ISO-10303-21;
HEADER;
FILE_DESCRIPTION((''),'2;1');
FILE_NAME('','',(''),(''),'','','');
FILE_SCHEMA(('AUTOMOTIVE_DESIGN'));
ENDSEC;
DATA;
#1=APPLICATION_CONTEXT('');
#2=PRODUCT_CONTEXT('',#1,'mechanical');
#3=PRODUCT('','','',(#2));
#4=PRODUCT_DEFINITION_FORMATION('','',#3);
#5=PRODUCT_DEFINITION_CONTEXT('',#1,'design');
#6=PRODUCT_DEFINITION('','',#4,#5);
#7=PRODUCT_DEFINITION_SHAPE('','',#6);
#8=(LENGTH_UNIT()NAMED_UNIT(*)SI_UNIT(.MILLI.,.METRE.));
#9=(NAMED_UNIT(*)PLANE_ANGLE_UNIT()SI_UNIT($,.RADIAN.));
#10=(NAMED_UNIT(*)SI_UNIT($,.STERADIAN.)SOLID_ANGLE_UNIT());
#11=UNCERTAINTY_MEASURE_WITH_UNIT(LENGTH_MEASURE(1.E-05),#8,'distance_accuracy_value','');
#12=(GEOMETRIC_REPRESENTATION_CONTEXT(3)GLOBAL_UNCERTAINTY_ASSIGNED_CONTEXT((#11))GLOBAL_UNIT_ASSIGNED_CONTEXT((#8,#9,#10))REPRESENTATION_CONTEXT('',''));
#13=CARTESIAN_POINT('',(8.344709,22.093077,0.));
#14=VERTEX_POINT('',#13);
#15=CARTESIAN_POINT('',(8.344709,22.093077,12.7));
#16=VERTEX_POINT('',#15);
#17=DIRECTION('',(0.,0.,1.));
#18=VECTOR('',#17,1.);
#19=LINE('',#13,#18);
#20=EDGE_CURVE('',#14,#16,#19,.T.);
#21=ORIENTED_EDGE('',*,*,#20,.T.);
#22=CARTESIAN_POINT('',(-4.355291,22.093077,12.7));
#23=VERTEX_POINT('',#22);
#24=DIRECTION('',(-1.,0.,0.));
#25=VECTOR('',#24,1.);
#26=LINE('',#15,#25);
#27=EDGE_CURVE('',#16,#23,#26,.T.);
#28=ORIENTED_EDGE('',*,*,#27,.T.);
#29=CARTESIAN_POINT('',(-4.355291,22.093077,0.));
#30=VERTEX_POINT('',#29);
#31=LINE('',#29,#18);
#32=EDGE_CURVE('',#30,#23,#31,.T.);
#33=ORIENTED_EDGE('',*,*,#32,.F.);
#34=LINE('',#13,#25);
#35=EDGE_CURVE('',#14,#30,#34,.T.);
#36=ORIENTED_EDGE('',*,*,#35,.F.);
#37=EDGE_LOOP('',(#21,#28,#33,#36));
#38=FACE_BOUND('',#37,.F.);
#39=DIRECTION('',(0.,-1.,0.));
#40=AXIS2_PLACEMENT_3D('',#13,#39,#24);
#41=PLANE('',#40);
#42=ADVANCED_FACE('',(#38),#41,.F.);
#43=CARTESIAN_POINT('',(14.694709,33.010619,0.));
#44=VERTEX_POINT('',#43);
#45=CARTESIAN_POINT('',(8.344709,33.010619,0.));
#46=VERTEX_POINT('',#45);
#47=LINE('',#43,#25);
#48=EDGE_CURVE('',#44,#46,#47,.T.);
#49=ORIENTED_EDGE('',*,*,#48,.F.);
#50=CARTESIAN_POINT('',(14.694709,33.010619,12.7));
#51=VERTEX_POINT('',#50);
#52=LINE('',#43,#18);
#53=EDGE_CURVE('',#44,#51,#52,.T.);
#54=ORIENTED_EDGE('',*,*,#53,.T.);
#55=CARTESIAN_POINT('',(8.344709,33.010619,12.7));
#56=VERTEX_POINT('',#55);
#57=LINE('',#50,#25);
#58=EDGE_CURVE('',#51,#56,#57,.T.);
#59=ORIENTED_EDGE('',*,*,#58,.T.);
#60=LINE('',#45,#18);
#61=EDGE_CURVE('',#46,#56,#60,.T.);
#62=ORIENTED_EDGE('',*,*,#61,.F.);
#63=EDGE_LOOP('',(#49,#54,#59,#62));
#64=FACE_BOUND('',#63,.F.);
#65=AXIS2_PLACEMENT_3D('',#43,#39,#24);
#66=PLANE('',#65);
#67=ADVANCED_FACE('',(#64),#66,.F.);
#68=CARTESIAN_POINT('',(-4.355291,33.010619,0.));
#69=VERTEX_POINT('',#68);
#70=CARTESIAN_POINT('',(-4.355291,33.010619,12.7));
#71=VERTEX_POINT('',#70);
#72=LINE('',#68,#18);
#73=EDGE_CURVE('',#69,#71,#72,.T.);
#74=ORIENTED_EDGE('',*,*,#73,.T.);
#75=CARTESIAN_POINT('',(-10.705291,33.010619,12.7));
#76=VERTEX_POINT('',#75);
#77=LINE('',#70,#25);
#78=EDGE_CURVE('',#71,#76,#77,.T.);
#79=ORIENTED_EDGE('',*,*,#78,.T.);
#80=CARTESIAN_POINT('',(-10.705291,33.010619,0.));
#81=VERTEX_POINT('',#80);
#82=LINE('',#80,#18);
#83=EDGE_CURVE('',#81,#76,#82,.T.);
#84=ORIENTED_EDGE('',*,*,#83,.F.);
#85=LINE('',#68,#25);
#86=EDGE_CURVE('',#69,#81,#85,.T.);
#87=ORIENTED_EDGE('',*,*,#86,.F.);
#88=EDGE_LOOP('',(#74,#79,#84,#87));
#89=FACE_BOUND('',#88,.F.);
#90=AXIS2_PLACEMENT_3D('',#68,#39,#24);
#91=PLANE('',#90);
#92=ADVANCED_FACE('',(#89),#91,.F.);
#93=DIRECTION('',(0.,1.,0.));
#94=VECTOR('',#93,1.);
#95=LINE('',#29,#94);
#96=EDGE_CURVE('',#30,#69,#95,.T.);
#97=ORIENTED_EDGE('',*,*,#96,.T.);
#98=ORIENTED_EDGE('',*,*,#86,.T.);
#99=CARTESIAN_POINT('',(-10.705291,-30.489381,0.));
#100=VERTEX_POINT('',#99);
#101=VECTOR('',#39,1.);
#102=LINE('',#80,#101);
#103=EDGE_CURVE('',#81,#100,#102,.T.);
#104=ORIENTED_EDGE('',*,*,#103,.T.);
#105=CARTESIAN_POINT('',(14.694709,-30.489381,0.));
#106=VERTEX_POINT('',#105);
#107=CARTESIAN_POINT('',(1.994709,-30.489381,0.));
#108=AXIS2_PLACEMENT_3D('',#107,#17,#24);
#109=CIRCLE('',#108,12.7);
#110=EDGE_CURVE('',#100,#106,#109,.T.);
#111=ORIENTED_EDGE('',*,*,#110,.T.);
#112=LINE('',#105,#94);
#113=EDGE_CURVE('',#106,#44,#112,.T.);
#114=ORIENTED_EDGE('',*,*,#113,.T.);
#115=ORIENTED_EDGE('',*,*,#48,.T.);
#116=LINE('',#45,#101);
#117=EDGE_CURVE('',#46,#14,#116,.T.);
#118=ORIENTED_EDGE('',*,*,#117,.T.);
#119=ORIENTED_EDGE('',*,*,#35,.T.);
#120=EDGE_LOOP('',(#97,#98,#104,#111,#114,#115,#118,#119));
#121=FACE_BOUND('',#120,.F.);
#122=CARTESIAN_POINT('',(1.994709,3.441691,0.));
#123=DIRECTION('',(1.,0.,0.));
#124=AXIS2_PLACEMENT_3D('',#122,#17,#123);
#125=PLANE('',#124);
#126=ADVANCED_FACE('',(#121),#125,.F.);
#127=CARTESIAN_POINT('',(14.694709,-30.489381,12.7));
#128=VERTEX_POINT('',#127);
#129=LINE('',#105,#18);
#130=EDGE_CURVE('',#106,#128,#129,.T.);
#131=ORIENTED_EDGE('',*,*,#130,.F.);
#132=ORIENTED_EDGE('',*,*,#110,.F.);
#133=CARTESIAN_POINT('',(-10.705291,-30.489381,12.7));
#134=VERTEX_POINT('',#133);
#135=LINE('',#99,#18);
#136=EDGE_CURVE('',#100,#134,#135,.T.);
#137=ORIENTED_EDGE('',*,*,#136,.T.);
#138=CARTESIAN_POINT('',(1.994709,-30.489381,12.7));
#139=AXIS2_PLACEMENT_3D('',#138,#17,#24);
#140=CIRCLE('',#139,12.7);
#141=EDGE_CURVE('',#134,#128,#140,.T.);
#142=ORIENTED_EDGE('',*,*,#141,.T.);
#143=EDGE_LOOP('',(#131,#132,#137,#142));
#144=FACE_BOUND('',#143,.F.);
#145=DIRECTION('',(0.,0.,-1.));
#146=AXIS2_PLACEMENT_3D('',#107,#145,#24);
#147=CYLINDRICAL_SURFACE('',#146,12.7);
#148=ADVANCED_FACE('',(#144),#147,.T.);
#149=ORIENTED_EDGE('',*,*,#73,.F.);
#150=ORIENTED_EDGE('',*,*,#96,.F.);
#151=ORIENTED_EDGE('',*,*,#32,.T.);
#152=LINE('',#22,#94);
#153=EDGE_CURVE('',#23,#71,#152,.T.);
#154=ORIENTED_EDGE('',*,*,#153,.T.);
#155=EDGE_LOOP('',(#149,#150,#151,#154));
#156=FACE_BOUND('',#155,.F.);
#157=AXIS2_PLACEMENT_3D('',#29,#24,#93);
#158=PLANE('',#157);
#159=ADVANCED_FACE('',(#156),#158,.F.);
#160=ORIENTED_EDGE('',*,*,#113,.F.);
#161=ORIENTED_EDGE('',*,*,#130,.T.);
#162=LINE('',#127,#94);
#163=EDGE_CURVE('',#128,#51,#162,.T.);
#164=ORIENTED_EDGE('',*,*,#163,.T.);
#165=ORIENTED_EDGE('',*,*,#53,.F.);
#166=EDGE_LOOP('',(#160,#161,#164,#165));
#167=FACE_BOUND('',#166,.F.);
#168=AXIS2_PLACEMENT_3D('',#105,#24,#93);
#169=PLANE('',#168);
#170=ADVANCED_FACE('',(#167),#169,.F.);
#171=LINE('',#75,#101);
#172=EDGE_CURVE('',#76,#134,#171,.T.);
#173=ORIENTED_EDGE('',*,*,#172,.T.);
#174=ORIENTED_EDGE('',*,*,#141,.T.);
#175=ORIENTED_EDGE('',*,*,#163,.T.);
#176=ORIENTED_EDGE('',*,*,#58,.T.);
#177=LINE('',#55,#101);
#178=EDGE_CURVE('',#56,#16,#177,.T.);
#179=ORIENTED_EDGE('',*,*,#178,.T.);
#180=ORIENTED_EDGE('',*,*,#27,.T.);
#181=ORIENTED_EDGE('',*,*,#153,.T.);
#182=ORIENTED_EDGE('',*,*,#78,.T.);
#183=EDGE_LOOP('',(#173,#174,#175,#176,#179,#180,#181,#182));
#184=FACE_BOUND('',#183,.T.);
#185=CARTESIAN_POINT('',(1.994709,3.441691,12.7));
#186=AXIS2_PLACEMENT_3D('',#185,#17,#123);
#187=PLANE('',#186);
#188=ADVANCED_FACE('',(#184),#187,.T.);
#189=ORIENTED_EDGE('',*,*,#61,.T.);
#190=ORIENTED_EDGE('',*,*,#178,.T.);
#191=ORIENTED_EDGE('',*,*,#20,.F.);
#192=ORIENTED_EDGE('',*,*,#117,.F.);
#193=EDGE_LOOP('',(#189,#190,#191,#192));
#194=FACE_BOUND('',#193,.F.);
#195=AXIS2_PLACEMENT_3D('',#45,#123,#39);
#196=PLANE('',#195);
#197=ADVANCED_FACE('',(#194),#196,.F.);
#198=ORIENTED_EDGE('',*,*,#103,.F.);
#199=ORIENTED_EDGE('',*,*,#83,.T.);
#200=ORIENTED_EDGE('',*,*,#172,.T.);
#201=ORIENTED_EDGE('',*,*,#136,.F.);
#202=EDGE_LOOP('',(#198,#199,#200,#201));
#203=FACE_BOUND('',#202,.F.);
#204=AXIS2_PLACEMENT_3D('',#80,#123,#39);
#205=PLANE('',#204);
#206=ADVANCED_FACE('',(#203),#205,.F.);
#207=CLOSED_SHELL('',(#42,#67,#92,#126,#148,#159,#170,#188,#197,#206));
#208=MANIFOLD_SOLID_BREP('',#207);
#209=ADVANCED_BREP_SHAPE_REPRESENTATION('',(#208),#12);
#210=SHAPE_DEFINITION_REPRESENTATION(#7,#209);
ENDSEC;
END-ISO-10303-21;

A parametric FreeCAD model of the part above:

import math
import FreeCAD as App
import Part
import Sketcher
from FreeCAD import Vector
Q = App.Units.Quantity

doc = App.newDocument("Part")
body = doc.addObject("PartDesign::Body", "Body")

# Sketch on XY plane
sketch1 = body.newObject("Sketcher::SketchObject", "Sketch")
sketch1.AttachmentSupport = (doc.getObject("XY_Plane"), [""])
sketch1.MapMode = "FlatFace"
sketch1.addGeometry(Part.LineSegment(Vector(-4, 33, 0), Vector(-11, 33, 0)), False)
sketch1.addGeometry(Part.LineSegment(Vector(-11, 33, 0), Vector(-11, -30, 0)), False)
sketch1.addGeometry(Part.ArcOfCircle(Part.Circle(Vector(2, -30, 0), Vector(0, 0, 1), 13), math.radians(180), math.radians(360)), False)
sketch1.addGeometry(Part.LineSegment(Vector(15, -30, 0), Vector(15, 33, 0)), False)
sketch1.addGeometry(Part.LineSegment(Vector(15, 33, 0), Vector(8, 33, 0)), False)
sketch1.addGeometry(Part.LineSegment(Vector(8, 33, 0), Vector(8, 22, 0)), False)
sketch1.addGeometry(Part.LineSegment(Vector(8, 22, 0), Vector(-4, 22, 0)), False)
sketch1.addGeometry(Part.LineSegment(Vector(-4, 22, 0), Vector(-4, 33, 0)), False)
sketch1.addConstraint(Sketcher.Constraint("Coincident", 0, 2, 1, 1))
sketch1.addConstraint(Sketcher.Constraint("Tangent", 1, 2, 2, 1))
sketch1.addConstraint(Sketcher.Constraint("Tangent", 2, 2, 3, 1))
sketch1.addConstraint(Sketcher.Constraint("Coincident", 3, 2, 4, 1))
sketch1.addConstraint(Sketcher.Constraint("Coincident", 4, 2, 5, 1))
sketch1.addConstraint(Sketcher.Constraint("Coincident", 5, 2, 6, 1))
sketch1.addConstraint(Sketcher.Constraint("Coincident", 6, 2, 7, 1))
sketch1.addConstraint(Sketcher.Constraint("Coincident", 7, 2, 0, 1))
sketch1.addConstraint(Sketcher.Constraint("Horizontal", 0))
sketch1.addConstraint(Sketcher.Constraint("Vertical", 1))
sketch1.addConstraint(Sketcher.Constraint("Vertical", 3))
sketch1.addConstraint(Sketcher.Constraint("Horizontal", 4))
sketch1.addConstraint(Sketcher.Constraint("Vertical", 5))
sketch1.addConstraint(Sketcher.Constraint("Horizontal", 6))
sketch1.addConstraint(Sketcher.Constraint("Vertical", 7))
sketch1.addConstraint(Sketcher.Constraint("Horizontal", 0, 2, 3, 2))
sketch1.addConstraint(Sketcher.Constraint("Equal", 0, 4))
sketch1.addConstraint(Sketcher.Constraint("Radius", 2, Q("0.5 in")))
sketch1.addConstraint(Sketcher.Constraint("DistanceX", 6, 2, 6, 1, Q("0.5 in")))
sketch1.addConstraint(Sketcher.Constraint("DistanceY", 1, 2, 1, 1, Q("2.5 in")))
sketch1.addConstraint(Sketcher.Constraint("DistanceY", 5, 2, 5, 1, Q("10.917542 mm")))
sketch1.addConstraint(Sketcher.Constraint("DistanceX", -1, 1, 2, 3, Q("1.994709 mm")))
sketch1.addConstraint(Sketcher.Constraint("DistanceY", 2, 3, -1, 1, Q("30.489381 mm")))
pad1 = body.newObject("PartDesign::Pad", "Pad")
pad1.Profile = sketch1
pad1.Length = Q("0.5 in")

doc.recompute()
